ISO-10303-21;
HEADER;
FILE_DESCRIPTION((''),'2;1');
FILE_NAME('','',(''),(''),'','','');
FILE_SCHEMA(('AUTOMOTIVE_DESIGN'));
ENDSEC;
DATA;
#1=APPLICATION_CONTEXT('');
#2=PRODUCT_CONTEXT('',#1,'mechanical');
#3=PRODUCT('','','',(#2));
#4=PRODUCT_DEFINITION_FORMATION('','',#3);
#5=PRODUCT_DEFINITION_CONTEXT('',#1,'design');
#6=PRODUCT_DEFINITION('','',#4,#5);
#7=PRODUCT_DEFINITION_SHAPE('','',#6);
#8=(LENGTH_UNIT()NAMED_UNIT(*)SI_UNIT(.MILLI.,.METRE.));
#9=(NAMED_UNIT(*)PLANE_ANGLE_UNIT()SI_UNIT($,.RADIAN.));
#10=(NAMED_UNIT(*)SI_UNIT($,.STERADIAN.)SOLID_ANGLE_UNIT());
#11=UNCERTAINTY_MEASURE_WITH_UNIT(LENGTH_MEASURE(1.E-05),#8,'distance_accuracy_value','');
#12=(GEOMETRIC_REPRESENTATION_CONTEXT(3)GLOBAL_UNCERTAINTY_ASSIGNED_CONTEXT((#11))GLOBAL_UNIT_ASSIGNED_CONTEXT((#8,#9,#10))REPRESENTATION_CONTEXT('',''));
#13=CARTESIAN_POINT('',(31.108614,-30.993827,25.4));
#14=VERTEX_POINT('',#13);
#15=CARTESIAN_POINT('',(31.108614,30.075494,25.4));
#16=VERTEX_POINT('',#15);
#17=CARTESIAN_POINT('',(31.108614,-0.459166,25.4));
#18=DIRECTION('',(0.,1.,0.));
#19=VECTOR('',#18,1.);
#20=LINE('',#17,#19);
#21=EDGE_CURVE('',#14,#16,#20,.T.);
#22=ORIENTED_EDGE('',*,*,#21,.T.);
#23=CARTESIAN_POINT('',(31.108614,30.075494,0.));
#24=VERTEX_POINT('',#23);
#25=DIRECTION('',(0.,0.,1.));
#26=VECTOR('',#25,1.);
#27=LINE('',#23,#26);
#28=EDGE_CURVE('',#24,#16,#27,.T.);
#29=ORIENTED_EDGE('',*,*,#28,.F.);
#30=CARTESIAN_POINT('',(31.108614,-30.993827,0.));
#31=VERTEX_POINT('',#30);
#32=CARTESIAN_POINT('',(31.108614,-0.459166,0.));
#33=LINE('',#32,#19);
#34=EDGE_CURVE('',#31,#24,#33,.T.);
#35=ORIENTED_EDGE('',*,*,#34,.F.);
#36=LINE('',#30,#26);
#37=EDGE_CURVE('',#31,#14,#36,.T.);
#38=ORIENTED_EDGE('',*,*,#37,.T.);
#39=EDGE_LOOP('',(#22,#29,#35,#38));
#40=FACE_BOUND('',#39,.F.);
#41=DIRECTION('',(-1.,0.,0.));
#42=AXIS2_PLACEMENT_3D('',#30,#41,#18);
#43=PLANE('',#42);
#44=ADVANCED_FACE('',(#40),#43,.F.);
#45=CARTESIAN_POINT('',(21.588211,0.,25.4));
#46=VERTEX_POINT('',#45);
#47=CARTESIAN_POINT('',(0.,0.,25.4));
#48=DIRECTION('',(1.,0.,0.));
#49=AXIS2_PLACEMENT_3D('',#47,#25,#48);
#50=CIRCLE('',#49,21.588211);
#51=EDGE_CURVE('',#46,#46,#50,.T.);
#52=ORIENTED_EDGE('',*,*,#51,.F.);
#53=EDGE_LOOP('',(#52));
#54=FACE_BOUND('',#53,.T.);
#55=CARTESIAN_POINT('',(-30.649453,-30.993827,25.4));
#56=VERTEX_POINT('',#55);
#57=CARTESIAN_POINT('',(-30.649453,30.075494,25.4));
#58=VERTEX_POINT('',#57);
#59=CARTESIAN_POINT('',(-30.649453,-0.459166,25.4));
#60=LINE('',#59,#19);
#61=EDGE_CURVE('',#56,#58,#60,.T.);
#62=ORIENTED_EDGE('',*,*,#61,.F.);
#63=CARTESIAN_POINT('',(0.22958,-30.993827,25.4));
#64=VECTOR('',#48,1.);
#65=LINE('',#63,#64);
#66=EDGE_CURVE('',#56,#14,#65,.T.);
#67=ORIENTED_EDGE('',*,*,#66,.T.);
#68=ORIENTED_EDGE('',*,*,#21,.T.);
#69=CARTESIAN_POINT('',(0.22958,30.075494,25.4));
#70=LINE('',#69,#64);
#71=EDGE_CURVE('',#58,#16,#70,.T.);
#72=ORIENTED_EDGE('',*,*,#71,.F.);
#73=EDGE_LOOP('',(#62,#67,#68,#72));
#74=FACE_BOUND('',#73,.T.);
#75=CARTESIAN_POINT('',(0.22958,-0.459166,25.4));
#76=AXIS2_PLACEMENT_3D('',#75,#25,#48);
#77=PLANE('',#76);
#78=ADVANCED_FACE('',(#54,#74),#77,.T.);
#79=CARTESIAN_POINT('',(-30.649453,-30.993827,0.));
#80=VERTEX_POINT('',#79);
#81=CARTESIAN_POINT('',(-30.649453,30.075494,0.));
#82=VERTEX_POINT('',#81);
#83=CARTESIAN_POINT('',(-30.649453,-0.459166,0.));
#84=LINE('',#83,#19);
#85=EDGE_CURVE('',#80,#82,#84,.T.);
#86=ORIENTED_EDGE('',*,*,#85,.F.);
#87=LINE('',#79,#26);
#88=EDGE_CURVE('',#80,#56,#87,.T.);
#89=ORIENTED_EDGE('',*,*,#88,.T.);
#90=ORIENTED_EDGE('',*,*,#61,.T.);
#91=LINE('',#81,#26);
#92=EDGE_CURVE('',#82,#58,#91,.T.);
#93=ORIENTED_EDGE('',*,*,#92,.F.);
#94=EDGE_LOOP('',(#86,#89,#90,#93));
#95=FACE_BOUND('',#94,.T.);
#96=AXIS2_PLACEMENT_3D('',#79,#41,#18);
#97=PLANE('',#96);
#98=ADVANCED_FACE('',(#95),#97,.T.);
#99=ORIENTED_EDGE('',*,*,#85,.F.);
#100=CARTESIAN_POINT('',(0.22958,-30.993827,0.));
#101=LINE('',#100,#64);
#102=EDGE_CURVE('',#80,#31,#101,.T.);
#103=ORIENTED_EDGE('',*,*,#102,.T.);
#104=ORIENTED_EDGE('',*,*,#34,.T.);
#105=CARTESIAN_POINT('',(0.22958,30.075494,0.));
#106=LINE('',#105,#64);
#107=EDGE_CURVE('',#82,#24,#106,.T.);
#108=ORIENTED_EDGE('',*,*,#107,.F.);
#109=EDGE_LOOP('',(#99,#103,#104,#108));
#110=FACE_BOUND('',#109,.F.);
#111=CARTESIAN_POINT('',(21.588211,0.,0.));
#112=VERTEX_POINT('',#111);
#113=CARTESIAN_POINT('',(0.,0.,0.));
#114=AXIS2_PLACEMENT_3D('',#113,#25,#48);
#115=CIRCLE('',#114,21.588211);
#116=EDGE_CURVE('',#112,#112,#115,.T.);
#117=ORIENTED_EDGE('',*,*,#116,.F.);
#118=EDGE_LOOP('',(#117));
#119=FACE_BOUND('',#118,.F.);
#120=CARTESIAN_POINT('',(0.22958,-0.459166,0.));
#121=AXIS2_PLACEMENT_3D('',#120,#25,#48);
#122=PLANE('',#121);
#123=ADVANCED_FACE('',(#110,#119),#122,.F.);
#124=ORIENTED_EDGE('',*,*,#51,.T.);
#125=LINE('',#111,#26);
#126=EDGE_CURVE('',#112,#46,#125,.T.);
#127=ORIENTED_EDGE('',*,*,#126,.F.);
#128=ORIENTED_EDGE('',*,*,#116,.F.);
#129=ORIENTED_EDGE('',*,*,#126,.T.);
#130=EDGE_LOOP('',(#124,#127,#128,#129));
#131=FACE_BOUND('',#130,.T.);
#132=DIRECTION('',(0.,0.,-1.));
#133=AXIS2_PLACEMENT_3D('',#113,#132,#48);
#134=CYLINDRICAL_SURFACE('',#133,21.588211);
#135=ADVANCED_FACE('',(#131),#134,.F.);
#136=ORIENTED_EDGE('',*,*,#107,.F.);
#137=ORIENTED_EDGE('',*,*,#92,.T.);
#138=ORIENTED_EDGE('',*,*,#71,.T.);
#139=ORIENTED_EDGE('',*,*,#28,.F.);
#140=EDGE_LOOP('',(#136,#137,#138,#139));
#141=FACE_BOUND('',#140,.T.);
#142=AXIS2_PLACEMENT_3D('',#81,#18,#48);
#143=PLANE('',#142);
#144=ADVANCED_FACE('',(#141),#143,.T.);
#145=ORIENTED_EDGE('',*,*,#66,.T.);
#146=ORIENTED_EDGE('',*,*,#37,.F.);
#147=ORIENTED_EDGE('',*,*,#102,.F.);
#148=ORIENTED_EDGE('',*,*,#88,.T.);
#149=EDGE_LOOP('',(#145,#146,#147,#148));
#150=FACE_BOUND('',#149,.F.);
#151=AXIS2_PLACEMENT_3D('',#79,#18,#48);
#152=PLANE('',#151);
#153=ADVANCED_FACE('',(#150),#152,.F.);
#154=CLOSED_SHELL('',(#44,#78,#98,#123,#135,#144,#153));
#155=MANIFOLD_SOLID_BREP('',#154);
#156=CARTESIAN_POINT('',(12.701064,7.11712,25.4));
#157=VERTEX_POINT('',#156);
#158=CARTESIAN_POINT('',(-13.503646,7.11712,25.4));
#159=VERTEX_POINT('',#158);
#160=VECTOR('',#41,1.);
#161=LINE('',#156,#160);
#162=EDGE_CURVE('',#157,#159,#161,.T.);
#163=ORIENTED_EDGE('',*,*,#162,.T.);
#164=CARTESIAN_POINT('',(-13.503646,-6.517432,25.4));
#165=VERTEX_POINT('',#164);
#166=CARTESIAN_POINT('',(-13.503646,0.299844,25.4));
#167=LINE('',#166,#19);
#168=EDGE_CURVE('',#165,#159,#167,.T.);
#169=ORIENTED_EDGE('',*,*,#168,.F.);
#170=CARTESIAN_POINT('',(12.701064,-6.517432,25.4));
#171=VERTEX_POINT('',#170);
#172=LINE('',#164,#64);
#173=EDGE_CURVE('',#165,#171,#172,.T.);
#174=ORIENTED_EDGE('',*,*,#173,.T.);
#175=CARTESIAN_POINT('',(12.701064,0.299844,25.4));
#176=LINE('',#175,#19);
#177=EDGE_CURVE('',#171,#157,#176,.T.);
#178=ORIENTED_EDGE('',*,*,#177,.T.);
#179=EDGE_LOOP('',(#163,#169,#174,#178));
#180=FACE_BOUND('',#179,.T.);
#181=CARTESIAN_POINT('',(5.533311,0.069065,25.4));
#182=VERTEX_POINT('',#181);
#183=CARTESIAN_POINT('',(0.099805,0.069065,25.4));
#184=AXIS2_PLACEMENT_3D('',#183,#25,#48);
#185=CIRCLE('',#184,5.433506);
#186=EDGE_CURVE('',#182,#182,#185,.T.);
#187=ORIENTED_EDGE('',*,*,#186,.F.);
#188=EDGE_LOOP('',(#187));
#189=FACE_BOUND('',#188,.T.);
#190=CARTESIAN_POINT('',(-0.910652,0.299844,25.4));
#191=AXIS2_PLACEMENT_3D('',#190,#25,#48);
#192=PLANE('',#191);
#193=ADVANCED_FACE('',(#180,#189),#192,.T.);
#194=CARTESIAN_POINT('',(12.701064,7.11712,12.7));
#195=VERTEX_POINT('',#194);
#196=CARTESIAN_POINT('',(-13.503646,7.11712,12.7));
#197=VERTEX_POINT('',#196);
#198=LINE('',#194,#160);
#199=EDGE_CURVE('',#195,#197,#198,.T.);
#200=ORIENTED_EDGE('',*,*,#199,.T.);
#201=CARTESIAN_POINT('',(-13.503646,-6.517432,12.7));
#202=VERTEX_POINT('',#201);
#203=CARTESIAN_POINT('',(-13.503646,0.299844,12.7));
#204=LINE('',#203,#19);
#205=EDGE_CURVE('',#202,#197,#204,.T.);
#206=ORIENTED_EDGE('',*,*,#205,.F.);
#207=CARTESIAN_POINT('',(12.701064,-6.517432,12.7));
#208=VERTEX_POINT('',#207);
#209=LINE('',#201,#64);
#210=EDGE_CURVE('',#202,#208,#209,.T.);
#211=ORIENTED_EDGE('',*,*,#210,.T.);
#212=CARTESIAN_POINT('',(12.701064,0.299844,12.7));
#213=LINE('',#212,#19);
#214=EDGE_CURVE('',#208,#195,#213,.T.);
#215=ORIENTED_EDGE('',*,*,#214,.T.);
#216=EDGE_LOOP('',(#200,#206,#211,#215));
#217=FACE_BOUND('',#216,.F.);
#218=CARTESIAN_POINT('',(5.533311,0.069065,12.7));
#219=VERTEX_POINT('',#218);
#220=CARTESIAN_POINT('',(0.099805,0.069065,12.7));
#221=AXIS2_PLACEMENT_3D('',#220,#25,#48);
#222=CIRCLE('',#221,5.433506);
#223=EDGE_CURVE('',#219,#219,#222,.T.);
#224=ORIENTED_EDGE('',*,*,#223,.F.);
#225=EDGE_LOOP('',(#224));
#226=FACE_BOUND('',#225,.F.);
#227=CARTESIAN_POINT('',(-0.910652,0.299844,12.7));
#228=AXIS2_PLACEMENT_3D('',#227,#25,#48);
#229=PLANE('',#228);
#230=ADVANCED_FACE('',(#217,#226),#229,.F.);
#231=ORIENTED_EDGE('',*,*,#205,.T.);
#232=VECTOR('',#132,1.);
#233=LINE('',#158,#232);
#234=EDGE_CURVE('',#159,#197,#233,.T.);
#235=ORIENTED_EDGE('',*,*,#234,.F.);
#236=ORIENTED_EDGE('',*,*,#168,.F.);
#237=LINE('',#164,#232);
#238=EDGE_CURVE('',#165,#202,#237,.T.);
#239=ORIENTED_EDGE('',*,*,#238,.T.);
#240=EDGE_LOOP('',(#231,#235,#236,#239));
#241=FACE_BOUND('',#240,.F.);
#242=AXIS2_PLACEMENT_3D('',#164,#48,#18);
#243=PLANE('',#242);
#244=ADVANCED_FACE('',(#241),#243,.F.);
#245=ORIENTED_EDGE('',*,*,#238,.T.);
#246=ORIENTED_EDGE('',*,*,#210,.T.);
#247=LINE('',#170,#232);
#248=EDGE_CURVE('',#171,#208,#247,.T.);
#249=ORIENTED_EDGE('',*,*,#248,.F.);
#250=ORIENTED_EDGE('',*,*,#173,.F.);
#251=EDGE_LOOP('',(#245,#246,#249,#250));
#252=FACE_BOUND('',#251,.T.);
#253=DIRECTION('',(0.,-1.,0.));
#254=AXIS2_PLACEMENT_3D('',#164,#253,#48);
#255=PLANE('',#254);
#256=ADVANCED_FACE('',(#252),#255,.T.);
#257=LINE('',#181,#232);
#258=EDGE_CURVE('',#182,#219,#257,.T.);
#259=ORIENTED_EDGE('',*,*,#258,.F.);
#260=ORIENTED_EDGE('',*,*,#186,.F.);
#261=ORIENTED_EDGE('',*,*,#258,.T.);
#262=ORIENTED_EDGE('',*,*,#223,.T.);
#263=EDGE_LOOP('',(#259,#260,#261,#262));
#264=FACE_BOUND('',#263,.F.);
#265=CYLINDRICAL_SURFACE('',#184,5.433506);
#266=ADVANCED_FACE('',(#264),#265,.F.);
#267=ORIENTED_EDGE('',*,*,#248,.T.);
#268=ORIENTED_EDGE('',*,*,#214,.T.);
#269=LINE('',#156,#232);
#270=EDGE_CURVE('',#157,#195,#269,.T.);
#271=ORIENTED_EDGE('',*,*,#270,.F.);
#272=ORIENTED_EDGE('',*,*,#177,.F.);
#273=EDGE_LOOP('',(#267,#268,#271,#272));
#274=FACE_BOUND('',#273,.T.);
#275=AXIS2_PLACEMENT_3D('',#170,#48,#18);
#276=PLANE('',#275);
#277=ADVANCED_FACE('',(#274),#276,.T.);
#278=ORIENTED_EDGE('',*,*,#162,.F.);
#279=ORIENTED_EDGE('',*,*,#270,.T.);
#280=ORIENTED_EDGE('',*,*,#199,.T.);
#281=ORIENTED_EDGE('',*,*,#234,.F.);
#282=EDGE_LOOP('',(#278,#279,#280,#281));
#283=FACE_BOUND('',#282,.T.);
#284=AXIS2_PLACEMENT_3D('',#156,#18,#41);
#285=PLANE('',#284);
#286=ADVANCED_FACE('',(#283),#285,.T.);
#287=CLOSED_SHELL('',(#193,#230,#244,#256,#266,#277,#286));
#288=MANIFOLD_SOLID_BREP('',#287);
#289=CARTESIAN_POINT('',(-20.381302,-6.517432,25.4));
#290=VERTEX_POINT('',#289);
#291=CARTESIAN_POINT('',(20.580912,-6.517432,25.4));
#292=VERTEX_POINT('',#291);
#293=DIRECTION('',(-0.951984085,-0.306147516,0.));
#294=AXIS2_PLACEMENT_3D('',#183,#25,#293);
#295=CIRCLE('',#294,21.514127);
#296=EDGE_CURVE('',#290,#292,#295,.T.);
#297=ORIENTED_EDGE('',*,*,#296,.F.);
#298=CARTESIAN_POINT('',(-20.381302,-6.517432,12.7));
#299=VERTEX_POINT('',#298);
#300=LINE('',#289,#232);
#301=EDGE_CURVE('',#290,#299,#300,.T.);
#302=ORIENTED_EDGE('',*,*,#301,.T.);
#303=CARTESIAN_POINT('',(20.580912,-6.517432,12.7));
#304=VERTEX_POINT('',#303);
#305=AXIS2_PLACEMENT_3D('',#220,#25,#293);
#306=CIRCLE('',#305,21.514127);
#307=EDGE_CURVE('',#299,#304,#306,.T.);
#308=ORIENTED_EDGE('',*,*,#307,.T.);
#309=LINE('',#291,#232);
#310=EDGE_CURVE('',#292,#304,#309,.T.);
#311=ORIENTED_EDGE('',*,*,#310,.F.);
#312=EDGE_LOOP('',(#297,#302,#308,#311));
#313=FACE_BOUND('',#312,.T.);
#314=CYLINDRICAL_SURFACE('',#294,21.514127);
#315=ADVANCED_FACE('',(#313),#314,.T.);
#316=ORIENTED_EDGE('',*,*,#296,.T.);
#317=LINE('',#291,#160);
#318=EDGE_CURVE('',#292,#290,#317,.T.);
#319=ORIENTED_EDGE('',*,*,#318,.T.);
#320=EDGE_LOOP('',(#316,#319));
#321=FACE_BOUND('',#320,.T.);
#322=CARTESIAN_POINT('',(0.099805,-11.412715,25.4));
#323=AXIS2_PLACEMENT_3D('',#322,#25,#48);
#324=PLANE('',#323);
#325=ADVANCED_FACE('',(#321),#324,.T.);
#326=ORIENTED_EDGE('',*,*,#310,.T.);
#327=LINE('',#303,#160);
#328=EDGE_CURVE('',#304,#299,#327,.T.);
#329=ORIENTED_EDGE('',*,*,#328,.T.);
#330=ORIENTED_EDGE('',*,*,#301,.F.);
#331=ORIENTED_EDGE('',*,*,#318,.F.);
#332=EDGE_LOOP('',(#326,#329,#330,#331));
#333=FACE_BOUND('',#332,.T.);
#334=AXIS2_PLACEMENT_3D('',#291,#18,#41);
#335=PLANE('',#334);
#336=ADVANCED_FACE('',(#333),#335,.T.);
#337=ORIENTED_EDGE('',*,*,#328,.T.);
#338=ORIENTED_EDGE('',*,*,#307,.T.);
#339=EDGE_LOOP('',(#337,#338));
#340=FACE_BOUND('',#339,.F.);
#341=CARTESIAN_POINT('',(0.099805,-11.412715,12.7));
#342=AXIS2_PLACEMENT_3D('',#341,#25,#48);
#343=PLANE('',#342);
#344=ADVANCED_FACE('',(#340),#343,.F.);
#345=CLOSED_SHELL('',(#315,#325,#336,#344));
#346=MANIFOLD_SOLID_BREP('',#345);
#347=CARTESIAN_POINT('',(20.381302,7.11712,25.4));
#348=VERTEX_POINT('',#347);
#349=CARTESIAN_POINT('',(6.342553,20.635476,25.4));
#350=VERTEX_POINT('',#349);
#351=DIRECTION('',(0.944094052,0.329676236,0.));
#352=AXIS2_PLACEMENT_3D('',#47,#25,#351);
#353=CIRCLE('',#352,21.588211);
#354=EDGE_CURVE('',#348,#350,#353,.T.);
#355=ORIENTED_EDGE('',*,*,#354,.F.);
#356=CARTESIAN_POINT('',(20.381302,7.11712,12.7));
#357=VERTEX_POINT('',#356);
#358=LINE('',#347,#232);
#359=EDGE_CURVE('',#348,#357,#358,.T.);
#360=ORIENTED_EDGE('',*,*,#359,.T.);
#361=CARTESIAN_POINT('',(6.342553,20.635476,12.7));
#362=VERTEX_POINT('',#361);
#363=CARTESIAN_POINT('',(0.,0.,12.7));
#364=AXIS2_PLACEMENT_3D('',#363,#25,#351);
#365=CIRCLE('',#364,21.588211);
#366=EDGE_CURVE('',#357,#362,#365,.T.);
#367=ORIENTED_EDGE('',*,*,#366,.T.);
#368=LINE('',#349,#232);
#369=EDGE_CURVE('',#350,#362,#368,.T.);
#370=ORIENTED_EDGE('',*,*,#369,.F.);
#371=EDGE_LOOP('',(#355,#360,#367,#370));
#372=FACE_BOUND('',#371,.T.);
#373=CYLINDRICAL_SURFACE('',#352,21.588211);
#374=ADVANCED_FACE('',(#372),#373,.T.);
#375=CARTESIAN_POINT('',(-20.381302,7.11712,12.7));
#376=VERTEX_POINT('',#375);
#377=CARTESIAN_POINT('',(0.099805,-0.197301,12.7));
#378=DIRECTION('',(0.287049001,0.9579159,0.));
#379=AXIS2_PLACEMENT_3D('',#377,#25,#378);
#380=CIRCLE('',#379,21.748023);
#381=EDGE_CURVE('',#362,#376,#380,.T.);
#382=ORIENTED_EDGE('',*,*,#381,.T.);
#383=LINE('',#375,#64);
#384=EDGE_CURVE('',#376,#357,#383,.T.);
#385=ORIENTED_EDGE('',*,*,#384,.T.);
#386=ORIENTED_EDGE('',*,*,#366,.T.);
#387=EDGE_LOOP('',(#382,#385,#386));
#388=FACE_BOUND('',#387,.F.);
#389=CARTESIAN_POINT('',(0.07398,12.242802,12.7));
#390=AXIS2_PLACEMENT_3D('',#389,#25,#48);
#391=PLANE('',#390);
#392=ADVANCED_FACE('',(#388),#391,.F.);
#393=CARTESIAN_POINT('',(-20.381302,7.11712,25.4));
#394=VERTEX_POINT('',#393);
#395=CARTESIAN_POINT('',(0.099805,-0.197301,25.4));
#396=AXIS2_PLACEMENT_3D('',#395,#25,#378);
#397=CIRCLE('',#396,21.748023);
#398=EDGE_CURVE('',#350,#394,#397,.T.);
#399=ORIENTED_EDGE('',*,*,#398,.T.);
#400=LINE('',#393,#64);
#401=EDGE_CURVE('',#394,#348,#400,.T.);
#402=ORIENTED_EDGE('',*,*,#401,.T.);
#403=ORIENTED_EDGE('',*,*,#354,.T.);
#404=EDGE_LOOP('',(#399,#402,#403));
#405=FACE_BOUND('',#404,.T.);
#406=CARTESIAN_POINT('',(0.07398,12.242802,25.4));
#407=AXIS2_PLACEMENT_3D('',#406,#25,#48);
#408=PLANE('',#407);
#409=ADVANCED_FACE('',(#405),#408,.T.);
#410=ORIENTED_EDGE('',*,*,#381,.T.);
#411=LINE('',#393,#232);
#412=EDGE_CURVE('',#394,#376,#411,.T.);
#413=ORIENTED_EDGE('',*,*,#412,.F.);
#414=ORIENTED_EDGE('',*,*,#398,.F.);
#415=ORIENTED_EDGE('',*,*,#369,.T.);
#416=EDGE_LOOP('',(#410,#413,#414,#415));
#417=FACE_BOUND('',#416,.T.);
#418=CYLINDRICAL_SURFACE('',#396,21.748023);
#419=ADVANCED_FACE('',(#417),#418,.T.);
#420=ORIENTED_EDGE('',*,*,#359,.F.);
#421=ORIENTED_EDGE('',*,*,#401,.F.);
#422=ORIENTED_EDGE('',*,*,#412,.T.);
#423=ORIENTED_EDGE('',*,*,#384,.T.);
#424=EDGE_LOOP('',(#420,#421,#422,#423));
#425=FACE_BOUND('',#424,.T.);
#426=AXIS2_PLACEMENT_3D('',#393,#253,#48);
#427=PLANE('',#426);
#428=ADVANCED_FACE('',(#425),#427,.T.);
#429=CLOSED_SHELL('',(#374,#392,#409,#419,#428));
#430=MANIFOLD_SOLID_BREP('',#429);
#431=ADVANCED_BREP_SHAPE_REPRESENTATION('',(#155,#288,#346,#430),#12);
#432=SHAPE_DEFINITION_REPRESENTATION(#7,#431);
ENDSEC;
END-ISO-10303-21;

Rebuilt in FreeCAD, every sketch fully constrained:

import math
import FreeCAD as App
import Part
import Sketcher
from FreeCAD import Vector
Q = App.Units.Quantity


def add_polygon(sketch, points):
    """Adds a closed chain of lines whose ends are joined by coincident constraints."""
    first, n = sketch.GeometryCount, len(points)
    for a, b in zip(points, points[1:] + points[:1]):
        sketch.addGeometry(Part.LineSegment(App.Vector(*a, 0), App.Vector(*b, 0)), False)
    for i in range(n):
        sketch.addConstraint(Sketcher.Constraint("Coincident", first + i, 2, first + (i + 1) % n, 1))

doc = App.newDocument("Part")
body = doc.addObject("PartDesign::Body", "Body")

sketch1 = doc.addObject("Sketcher::SketchObject", "Sketch")
body.addObject(sketch1)
sketch1.AttachmentSupport = (doc.XY_Plane, [""])
sketch1.MapMode = "FlatFace"
add_polygon(sketch1, [(-30.649453, 30.075494), (-30.649453, -30.993827), (31.108614, -30.993827), (31.108614, 30.075494)])
sketch1.addGeometry(Part.Circle(Vector(0, 0, 0), Vector(0, 0, 1), 21.588211), False)
sketch1.addConstraint([
    Sketcher.Constraint("Vertical", 0),
    Sketcher.Constraint("Horizontal", 1),
    Sketcher.Constraint("Vertical", 2),
    Sketcher.Constraint("Horizontal", 3),
    Sketcher.Constraint("Coincident", 4, 3, -1, 1),
    Sketcher.Constraint("Diameter", 4, 43.176422),
    Sketcher.Constraint("DistanceY", 0, 2, 0, 1, 61.069321),
    Sketcher.Constraint("DistanceX", 1, 1, 1, 2, 61.758067),
    Sketcher.Constraint("DistanceX", 0, 2, -1, 1, 30.649453),
    Sketcher.Constraint("DistanceY", 0, 2, -1, 1, 30.993827),
])
pad1 = doc.addObject("PartDesign::Pad", "Pad")
body.addObject(pad1)
pad1.Profile = sketch1
pad1.Length = Q("1 in")
body2 = doc.addObject("PartDesign::Body", "Body001")

sketch2 = doc.addObject("Sketcher::SketchObject", "Sketch001")
body2.addObject(sketch2)
sketch2.AttachmentSupport = (doc.getObject("XY_Plane001"), [""])
sketch2.MapMode = "FlatFace"
sketch2.AttachmentOffset = App.Placement(Vector(0, 0, 1 * 25.4), App.Rotation())
sketch2.addGeometry([
    Part.ArcOfCircle(Part.Circle(Vector(0.099805, -0.197301, 0), Vector(0, 0, 1), 21.748023), math.radians(73.318634), math.radians(160.346822)),
    Part.LineSegment(Vector(-20.381302, 7.11712, 0), Vector(20.381302, 7.11712, 0)),
    Part.ArcOfCircle(Part.Circle(Vector(0, 0, 0), Vector(0, 0, 1), 21.588211), math.radians(19.249126), math.radians(72.914581)),
], False)
sketch2.addConstraint([
    Sketcher.Constraint("Coincident", 0, 2, 1, 1),
    Sketcher.Constraint("Coincident", 1, 2, 2, 1),
    Sketcher.Constraint("Coincident", 2, 2, 0, 1),
    Sketcher.Constraint("Horizontal", 1),
    Sketcher.Constraint("Coincident", 2, 3, -1, 1),
    Sketcher.Constraint("Radius", 2, 21.588211),
    Sketcher.Constraint("Radius", 0, 21.748023),
    Sketcher.Constraint("DistanceY", 0, 3, -1, 1, 0.197301),
    Sketcher.Constraint("DistanceX", 0, 2, -1, 1, 20.381302),
    Sketcher.Constraint("DistanceX", -1, 1, 1, 2, 20.381302),
])
pad2 = doc.addObject("PartDesign::Pad", "Pad001")
body2.addObject(pad2)
pad2.Profile = sketch2
pad2.Length = Q("0.5 in")
pad2.Reversed = True
body3 = doc.addObject("PartDesign::Body", "Body002")

sketch3 = doc.addObject("Sketcher::SketchObject", "Sketch002")
body3.addObject(sketch3)
sketch3.AttachmentSupport = (doc.getObject("XY_Plane002"), [""])
sketch3.MapMode = "FlatFace"
sketch3.AttachmentOffset = App.Placement(Vector(0, 0, 1 * 25.4), App.Rotation())
sketch3.addGeometry([
    Part.ArcOfCircle(Part.Circle(Vector(0.099805, 0.069065, 0), Vector(0, 0, 1), 21.514127), math.radians(-162.172785), math.radians(-17.827215)),
    Part.LineSegment(Vector(20.580912, -6.517432, 0), Vector(-20.381302, -6.517432, 0)),
], False)
sketch3.addConstraint([
    Sketcher.Constraint("Coincident", 0, 1, 1, 2),
    Sketcher.Constraint("Coincident", 1, 1, 0, 2),
    Sketcher.Constraint("Horizontal", 1),
    Sketcher.Constraint("Radius", 0, 21.514127),
    Sketcher.Constraint("DistanceX", 0, 1, -1, 1, 20.381302),
    Sketcher.Constraint("DistanceX", 1, 2, 1, 1, 40.962214),
    Sketcher.Constraint("DistanceY", 0, 1, -1, 1, 6.517432),
])
pad3 = doc.addObject("PartDesign::Pad", "Pad002")
body3.addObject(pad3)
pad3.Profile = sketch3
pad3.Length = Q("0.5 in")
pad3.Reversed = True
body4 = doc.addObject("PartDesign::Body", "Body003")

sketch4 = doc.addObject("Sketcher::SketchObject", "Sketch003")
body4.addObject(sketch4)
sketch4.AttachmentSupport = (doc.getObject("XY_Plane003"), [""])
sketch4.MapMode = "FlatFace"
sketch4.AttachmentOffset = App.Placement(Vector(0, 0, 1 * 25.4), App.Rotation())
add_polygon(sketch4, [(-13.503646, 7.11712), (-13.503646, -6.517432), (12.701064, -6.517432), (12.701064, 7.11712)])
sketch4.addGeometry(Part.Circle(Vector(0.099805, 0.069065, 0), Vector(0, 0, 1), 5.433506), False)
sketch4.addConstraint([
    Sketcher.Constraint("Vertical", 0),
    Sketcher.Constraint("Horizontal", 1),
    Sketcher.Constraint("Vertical", 2),
    Sketcher.Constraint("Horizontal", 3),
    Sketcher.Constraint("Diameter", 4, 10.867011),
    Sketcher.Constraint("DistanceX", 1, 1, 1, 2, 26.20471),
    Sketcher.Constraint("DistanceY", 0, 2, 0, 1, 13.634552),
    Sketcher.Constraint("DistanceY", 0, 2, -1, 1, 6.517432),
    Sketcher.Constraint("DistanceX", 0, 2, 4, 3, 13.603451),
    Sketcher.Constraint("DistanceX", -1, 1, 4, 3, 0.099805),
    Sketcher.Constraint("DistanceY", -1, 1, 4, 3, 0.069065),
])
pad4 = doc.addObject("PartDesign::Pad", "Pad003")
body4.addObject(pad4)
pad4.Profile = sketch4
pad4.Length = Q("0.5 in")
pad4.Reversed = True

doc.recompute()
